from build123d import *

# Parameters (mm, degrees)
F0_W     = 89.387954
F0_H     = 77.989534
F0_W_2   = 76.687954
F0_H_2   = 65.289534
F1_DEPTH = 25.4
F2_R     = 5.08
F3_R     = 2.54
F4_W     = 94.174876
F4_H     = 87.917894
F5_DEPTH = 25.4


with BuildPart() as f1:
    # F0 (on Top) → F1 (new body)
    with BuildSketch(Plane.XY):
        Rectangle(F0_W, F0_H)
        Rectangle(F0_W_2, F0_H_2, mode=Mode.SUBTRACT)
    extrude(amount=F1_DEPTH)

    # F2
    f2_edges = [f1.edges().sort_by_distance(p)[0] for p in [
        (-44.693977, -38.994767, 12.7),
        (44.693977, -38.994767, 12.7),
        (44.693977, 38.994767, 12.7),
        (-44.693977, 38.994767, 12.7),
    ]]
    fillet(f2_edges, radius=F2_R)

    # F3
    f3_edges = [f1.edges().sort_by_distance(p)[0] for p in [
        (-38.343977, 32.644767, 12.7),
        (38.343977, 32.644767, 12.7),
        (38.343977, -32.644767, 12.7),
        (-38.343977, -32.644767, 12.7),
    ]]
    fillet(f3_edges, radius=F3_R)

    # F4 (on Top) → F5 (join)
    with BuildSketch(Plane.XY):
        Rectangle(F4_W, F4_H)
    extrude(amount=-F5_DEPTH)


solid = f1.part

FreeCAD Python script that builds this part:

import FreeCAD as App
import Part
import Sketcher
Q = App.Units.Quantity


def edges_at(feature, points):
    """Names of the edges that pass closest to the given points."""
    edges = feature.Shape.Edges
    near = lambda p: min(range(len(edges)), key=lambda i: edges[i].distToShape(Part.Vertex(*p))[0])
    return sorted({f"Edge{near(p) + 1}" for p in points})


def add_polygon(sketch, points):
    """Adds a closed chain of lines whose ends are joined by coincident constraints."""
    first, n = sketch.GeometryCount, len(points)
    for a, b in zip(points, points[1:] + points[:1]):
        sketch.addGeometry(Part.LineSegment(App.Vector(*a, 0), App.Vector(*b, 0)), False)
    for i in range(n):
        sketch.addConstraint(Sketcher.Constraint("Coincident", first + i, 2, first + (i + 1) % n, 1))

doc = App.newDocument("Part")
params = doc.addObject("Spreadsheet::Sheet", "Params")
for row, (alias, value) in enumerate([
    ("pad1_length", "1 in"),
    ("fillet_radius", "0.2 in"),
    ("fillet2_radius", "0.1 in"),
    ("pad2_length", "1 in"),
], start=1):
    params.set(f"A{row}", alias)
    params.set(f"B{row}", "=" + value)
    params.setAlias(f"B{row}", alias)

body = doc.addObject("PartDesign::Body", "Body")

sketch1 = body.newObject("Sketcher::SketchObject", "Sketch")
sketch1.AttachmentSupport = (doc.getObject("XY_Plane"), [""])
sketch1.MapMode = "FlatFace"
add_polygon(sketch1, [(-45, 39), (-45, -39), (45, -39), (45, 39)])
add_polygon(sketch1, [(38, -33), (-38, -33), (-38, 33), (38, 33)])
sketch1.addConstraint([
    Sketcher.Constraint("Vertical", 0),
    Sketcher.Constraint("Horizontal", 1),
    Sketcher.Constraint("Vertical", 2),
    Sketcher.Constraint("Horizontal", 3),
    Sketcher.Constraint("Horizontal", 4),
    Sketcher.Constraint("Vertical", 5),
    Sketcher.Constraint("Horizontal", 6),
    Sketcher.Constraint("Vertical", 7),
    Sketcher.Constraint("Symmetric", 0, 2, 2, 2, -1, 1),
    Sketcher.Constraint("Symmetric", 4, 2, 6, 2, -1, 1),
    Sketcher.Constraint("DistanceX", 0, 2, 4, 2, Q("0.25 in")),
    Sketcher.Constraint("DistanceY", 0, 2, 4, 2, Q("0.25 in")),
    Sketcher.Constraint("DistanceX", 1, 1, 1, 2, Q("89.387954 mm")),
    Sketcher.Constraint("DistanceY", 0, 2, 0, 1, Q("77.989534 mm")),
])
pad1 = body.newObject("PartDesign::Pad", "Pad")
pad1.Profile = sketch1
pad1.setExpression("Length", "Params.pad1_length")
doc.recompute()

fillet = body.newObject("PartDesign::Fillet", "Fillet")
fillet.Base = (pad1, edges_at(pad1, [
    (-44.694, -38.995, 12.7),
    (44.694, -38.995, 12.7),
    (44.694, 38.995, 12.7),
    (-44.694, 38.995, 12.7),
]))
fillet.setExpression("Radius", "Params.fillet_radius")
doc.recompute()

fillet2 = body.newObject("PartDesign::Fillet", "Fillet001")
fillet2.Base = (fillet, edges_at(fillet, [
    (-38.344, 32.645, 12.7),
    (38.344, 32.645, 12.7),
    (38.344, -32.645, 12.7),
    (-38.344, -32.645, 12.7),
]))
fillet2.setExpression("Radius", "Params.fillet2_radius")

sketch2 = body.newObject("Sketcher::SketchObject", "Sketch001")
sketch2.AttachmentSupport = (doc.getObject("XY_Plane"), [""])
sketch2.MapMode = "FlatFace"
add_polygon(sketch2, [(-47, 44), (-47, -44), (47, -44), (47, 44)])
sketch2.addConstraint([
    Sketcher.Constraint("Vertical", 0),
    Sketcher.Constraint("Horizontal", 1),
    Sketcher.Constraint("Vertical", 2),
    Sketcher.Constraint("Horizontal", 3),
    Sketcher.Constraint("Symmetric", 0, 2, 2, 2, -1, 1),
    Sketcher.Constraint("DistanceX", 1, 1, 1, 2, Q("94.174876 mm")),
    Sketcher.Constraint("DistanceY", 0, 2, 0, 1, Q("87.917894 mm")),
])
pad2 = body.newObject("PartDesign::Pad", "Pad001")
pad2.Profile = sketch2
pad2.setExpression("Length", "Params.pad2_length")
pad2.Reversed = True

doc.recompute()
